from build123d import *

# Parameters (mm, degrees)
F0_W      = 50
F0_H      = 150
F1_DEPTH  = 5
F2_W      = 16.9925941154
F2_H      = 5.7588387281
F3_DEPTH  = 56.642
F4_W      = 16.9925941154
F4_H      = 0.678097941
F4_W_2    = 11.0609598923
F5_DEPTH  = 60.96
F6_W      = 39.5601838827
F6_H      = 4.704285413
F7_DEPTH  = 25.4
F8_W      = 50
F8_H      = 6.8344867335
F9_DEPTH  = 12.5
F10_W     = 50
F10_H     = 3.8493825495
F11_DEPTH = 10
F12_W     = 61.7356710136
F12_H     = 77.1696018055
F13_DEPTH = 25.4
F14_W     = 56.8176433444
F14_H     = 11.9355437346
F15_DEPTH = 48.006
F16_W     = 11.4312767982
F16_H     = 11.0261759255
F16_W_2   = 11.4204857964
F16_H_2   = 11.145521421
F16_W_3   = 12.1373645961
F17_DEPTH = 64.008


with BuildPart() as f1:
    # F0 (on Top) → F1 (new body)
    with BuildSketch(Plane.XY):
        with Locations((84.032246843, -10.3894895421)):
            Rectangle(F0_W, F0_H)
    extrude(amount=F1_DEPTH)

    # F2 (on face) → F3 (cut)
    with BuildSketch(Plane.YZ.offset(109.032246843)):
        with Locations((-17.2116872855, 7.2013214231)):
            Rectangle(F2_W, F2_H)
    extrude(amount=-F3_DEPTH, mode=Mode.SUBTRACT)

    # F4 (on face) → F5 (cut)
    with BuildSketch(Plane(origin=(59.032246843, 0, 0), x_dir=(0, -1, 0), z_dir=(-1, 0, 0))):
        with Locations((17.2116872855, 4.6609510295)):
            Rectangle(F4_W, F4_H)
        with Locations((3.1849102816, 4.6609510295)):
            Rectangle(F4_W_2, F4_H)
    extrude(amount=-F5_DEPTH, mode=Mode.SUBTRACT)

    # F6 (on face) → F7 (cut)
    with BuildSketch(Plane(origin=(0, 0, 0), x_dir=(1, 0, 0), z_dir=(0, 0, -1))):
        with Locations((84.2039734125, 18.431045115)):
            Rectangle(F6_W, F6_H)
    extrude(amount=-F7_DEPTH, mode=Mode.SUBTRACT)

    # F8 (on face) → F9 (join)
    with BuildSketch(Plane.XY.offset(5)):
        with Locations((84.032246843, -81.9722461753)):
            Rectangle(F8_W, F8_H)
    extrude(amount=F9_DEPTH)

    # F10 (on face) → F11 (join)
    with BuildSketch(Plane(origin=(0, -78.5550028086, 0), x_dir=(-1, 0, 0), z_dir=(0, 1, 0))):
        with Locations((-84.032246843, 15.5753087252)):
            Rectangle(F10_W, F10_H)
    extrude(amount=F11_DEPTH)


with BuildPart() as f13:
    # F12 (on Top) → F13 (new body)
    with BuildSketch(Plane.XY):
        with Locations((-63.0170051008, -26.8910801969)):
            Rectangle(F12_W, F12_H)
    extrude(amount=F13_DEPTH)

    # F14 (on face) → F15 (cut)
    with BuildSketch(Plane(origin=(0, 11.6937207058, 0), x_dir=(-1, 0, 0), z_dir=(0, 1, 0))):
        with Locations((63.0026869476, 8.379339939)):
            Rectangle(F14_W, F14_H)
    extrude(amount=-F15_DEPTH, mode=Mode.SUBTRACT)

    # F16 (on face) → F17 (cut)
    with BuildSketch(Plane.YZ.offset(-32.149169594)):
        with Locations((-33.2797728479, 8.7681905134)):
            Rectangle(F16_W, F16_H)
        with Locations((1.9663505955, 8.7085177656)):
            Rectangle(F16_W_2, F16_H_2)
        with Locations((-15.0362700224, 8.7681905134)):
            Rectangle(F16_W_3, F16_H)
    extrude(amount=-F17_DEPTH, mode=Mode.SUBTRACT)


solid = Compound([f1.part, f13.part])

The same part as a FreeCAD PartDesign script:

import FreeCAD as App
import Part
import Sketcher
Q = App.Units.Quantity


def add_polygon(sketch, points):
    """Adds a closed chain of lines whose ends are joined by coincident constraints."""
    first, n = sketch.GeometryCount, len(points)
    for a, b in zip(points, points[1:] + points[:1]):
        sketch.addGeometry(Part.LineSegment(App.Vector(*a, 0), App.Vector(*b, 0)), False)
    for i in range(n):
        sketch.addConstraint(Sketcher.Constraint("Coincident", first + i, 2, first + (i + 1) % n, 1))

doc = App.newDocument("Part")
params = doc.addObject("Spreadsheet::Sheet", "Params")
for row, (alias, value) in enumerate([
    ("sketch1_width", "50 mm"),
    ("sketch1_height", "150 mm"),
    ("pad1_length", "5 mm"),
    ("pocket1_length", "56.642 mm"),
    ("pocket2_length", "60.96 mm"),
    ("pocket3_length", "25.4 mm"),
    ("sketch5_width", "50 mm"),
    ("pad2_length", "12.5 mm"),
    ("sketch6_width", "50 mm"),
    ("pad3_length", "10 mm"),
    ("pad4_length", "25.4 mm"),
    ("pocket4_length", "48.006 mm"),
    ("pocket5_length", "64.008 mm"),
], start=1):
    params.set(f"A{row}", alias)
    params.set(f"B{row}", "=" + value)
    params.setAlias(f"B{row}", alias)

body = doc.addObject("PartDesign::Body", "Body")

# Sketch on XY plane
sketch1 = body.newObject("Sketcher::SketchObject", "Sketch")
sketch1.AttachmentSupport = (doc.getObject("XY_Plane"), [""])
sketch1.MapMode = "FlatFace"
add_polygon(sketch1, [(59.032247, 64.61051), (59.032247, -85.38949), (109.032247, -85.38949), (109.032247, 64.61051)])  # lines 0-3
sketch1.addConstraint([
    Sketcher.Constraint("Vertical", 0),
    Sketcher.Constraint("Horizontal", 1),
    Sketcher.Constraint("Vertical", 2),
    Sketcher.Constraint("Horizontal", 3),
    Sketcher.Constraint("DistanceX", 1, 1, 1, 2, Q("50 mm")),
    Sketcher.Constraint("DistanceY", 0, 2, 0, 1, Q("150 mm")),
    Sketcher.Constraint("DistanceY", 0, 2, -1, 1, Q("85.38949 mm")),
    Sketcher.Constraint("DistanceX", -1, 1, 0, 2, Q("59.032247 mm")),
])
sketch1.setExpression("Constraints[8]", "Params.sketch1_width")
sketch1.setExpression("Constraints[9]", "Params.sketch1_height")
pad1 = body.newObject("PartDesign::Pad", "Pad")
pad1.Profile = sketch1
pad1.setExpression("Length", "Params.pad1_length")

# Sketch on YZ plane
sketch2 = body.newObject("Sketcher::SketchObject", "Sketch001")
sketch2.AttachmentSupport = (doc.getObject("YZ_Plane"), [""])
sketch2.MapMode = "FlatFace"
sketch2.AttachmentOffset = App.Placement(App.Vector(0, 0, 109.032247), App.Rotation())
add_polygon(sketch2, [(-25.707984, 10.080741), (-25.707984, 4.321902), (-8.71539, 4.321902), (-8.71539, 10.080741)])  # lines 0-3
sketch2.addConstraint([
    Sketcher.Constraint("Vertical", 0),
    Sketcher.Constraint("Horizontal", 1),
    Sketcher.Constraint("Vertical", 2),
    Sketcher.Constraint("Horizontal", 3),
    Sketcher.Constraint("DistanceY", 0, 2, 0, 1, Q("5.758839 mm")),
    Sketcher.Constraint("DistanceX", 1, 1, 1, 2, Q("16.992594 mm")),
    Sketcher.Constraint("DistanceX", 1, 2, -1, 1, Q("8.71539 mm")),
    Sketcher.Constraint("DistanceY", -1, 1, 2, 2, Q("10.080741 mm")),
])
pocket1 = body.newObject("PartDesign::Pocket", "Pocket")
pocket1.Profile = sketch2
pocket1.setExpression("Length", "Params.pocket1_length")

# Sketch on YZ plane
sketch3 = body.newObject("Sketcher::SketchObject", "Sketch002")
sketch3.AttachmentSupport = (doc.getObject("YZ_Plane"), [""])
sketch3.MapMode = "FlatFace"
sketch3.AttachmentOffset = App.Placement(App.Vector(0, 0, 59.032247), App.Rotation())
add_polygon(sketch3, [(-25.707984, 4.321902), (-25.707984, 5), (2.34557, 5), (2.34557, 4.321902)])  # lines 0-3
sketch3.addConstraint([
    Sketcher.Constraint("Vertical", 0),
    Sketcher.Constraint("Horizontal", 1),
    Sketcher.Constraint("Vertical", 2),
    Sketcher.Constraint("Horizontal", 3),
    Sketcher.Constraint("DistanceY", -1, 1, 0, 2, Q("5 mm")),
    Sketcher.Constraint("DistanceX", 1, 1, 1, 2, Q("28.053554 mm")),
    Sketcher.Constraint("DistanceY", 0, 1, 0, 2, Q("0.678098 mm")),
    Sketcher.Constraint("DistanceX", -1, 1, 1, 2, Q("2.34557 mm")),
])
pocket2 = body.newObject("PartDesign::Pocket", "Pocket001")
pocket2.Profile = sketch3
pocket2.setExpression("Length", "Params.pocket2_length")
pocket2.Reversed = True

# Sketch on XY plane
sketch4 = body.newObject("Sketcher::SketchObject", "Sketch003")
sketch4.AttachmentSupport = (doc.getObject("XY_Plane"), [""])
sketch4.MapMode = "FlatFace"
add_polygon(sketch4, [(64.423881, -20.783188), (64.423881, -16.078902), (103.984065, -16.078902), (103.984065, -20.783188)])  # lines 0-3
sketch4.addConstraint([
    Sketcher.Constraint("Vertical", 0),
    Sketcher.Constraint("Horizontal", 1),
    Sketcher.Constraint("Vertical", 2),
    Sketcher.Constraint("Horizontal", 3),
    Sketcher.Constraint("DistanceX", 1, 1, 1, 2, Q("39.560184 mm")),
    Sketcher.Constraint("DistanceY", 0, 1, 0, 2, Q("4.704285 mm")),
    Sketcher.Constraint("DistanceX", -1, 1, 0, 2, Q("64.423881 mm")),
    Sketcher.Constraint("DistanceY", 0, 2, -1, 1, Q("16.078902 mm")),
])
pocket3 = body.newObject("PartDesign::Pocket", "Pocket002")
pocket3.Profile = sketch4
pocket3.setExpression("Length", "Params.pocket3_length")
pocket3.Reversed = True

# Sketch on XY plane
sketch5 = body.newObject("Sketcher::SketchObject", "Sketch004")
sketch5.AttachmentSupport = (doc.getObject("XY_Plane"), [""])
sketch5.MapMode = "FlatFace"
sketch5.AttachmentOffset = App.Placement(App.Vector(0, 0, 5), App.Rotation())
add_polygon(sketch5, [(59.032247, -78.555003), (59.032247, -85.38949), (109.032247, -85.38949), (109.032247, -78.555003)])  # lines 0-3
sketch5.addConstraint([
    Sketcher.Constraint("Vertical", 0),
    Sketcher.Constraint("Horizontal", 1),
    Sketcher.Constraint("Vertical", 2),
    Sketcher.Constraint("Horizontal", 3),
    Sketcher.Constraint("DistanceX", 1, 1, 1, 2, Q("50 mm")),
    Sketcher.Constraint("DistanceY", 0, 2, 0, 1, Q("6.834487 mm")),
    Sketcher.Constraint("DistanceY", 0, 2, -1, 1, Q("85.38949 mm")),
    Sketcher.Constraint("DistanceX", -1, 1, 0, 2, Q("59.032247 mm")),
])
sketch5.setExpression("Constraints[8]", "Params.sketch5_width")
pad2 = body.newObject("PartDesign::Pad", "Pad001")
pad2.Profile = sketch5
pad2.setExpression("Length", "Params.pad2_length")

# Sketch on XZ plane
sketch6 = body.newObject("Sketcher::SketchObject", "Sketch005")
sketch6.AttachmentSupport = (doc.getObject("XZ_Plane"), [""])
sketch6.MapMode = "FlatFace"
sketch6.AttachmentOffset = App.Placement(App.Vector(0, 0, 78.555003), App.Rotation())
add_polygon(sketch6, [(109.032247, 17.5), (109.032247, 13.650617), (59.032247, 13.650617), (59.032247, 17.5)])  # lines 0-3
sketch6.addConstraint([
    Sketcher.Constraint("Vertical", 0),
    Sketcher.Constraint("Horizontal", 1),
    Sketcher.Constraint("Vertical", 2),
    Sketcher.Constraint("Horizontal", 3),
    Sketcher.Constraint("DistanceX", 1, 2, 1, 1, Q("50 mm")),
    Sketcher.Constraint("DistanceY", -1, 1, 2, 2, Q("17.5 mm")),
    Sketcher.Constraint("DistanceY", 0, 2, 0, 1, Q("3.849383 mm")),
    Sketcher.Constraint("DistanceX", -1, 1, 0, 2, Q("109.032247 mm")),
])
sketch6.setExpression("Constraints[8]", "Params.sketch6_width")
pad3 = body.newObject("PartDesign::Pad", "Pad002")
pad3.Profile = sketch6
pad3.setExpression("Length", "Params.pad3_length")
pad3.Reversed = True
body2 = doc.addObject("PartDesign::Body", "Body001")

# Sketch on XY plane
sketch7 = body2.newObject("Sketcher::SketchObject", "Sketch006")
sketch7.AttachmentSupport = (doc.getObject("XY_Plane001"), [""])
sketch7.MapMode = "FlatFace"
add_polygon(sketch7, [(-93.884841, 11.693721), (-93.884841, -65.475881), (-32.14917, -65.475881), (-32.14917, 11.693721)])  # lines 0-3
sketch7.addConstraint([
    Sketcher.Constraint("Vertical", 0),
    Sketcher.Constraint("Horizontal", 1),
    Sketcher.Constraint("Vertical", 2),
    Sketcher.Constraint("Horizontal", 3),
    Sketcher.Constraint("DistanceY", 0, 2, 0, 1, Q("77.169602 mm")),
    Sketcher.Constraint("DistanceX", 1, 1, 1, 2, Q("61.735671 mm")),
    Sketcher.Constraint("DistanceX", 0, 2, -1, 1, Q("93.884841 mm")),
    Sketcher.Constraint("DistanceY", 0, 2, -1, 1, Q("65.475881 mm")),
])
pad4 = body2.newObject("PartDesign::Pad", "Pad003")
pad4.Profile = sketch7
pad4.setExpression("Length", "Params.pad4_length")

# Sketch on XZ plane
sketch8 = body2.newObject("Sketcher::SketchObject", "Sketch007")
sketch8.AttachmentSupport = (doc.getObject("XZ_Plane001"), [""])
sketch8.MapMode = "FlatFace"
sketch8.AttachmentOffset = App.Placement(App.Vector(0, 0, -11.693721), App.Rotation())
add_polygon(sketch8, [(-34.593865, 14.347112), (-34.593865, 2.411568), (-91.411509, 2.411568), (-91.411509, 14.347112)])  # lines 0-3
sketch8.addConstraint([
    Sketcher.Constraint("Vertical", 0),
    Sketcher.Constraint("Horizontal", 1),
    Sketcher.Constraint("Vertical", 2),
    Sketcher.Constraint("Horizontal", 3),
    Sketcher.Constraint("DistanceX", 1, 2, 1, 1, Q("56.817643 mm")),
    Sketcher.Constraint("DistanceY", 0, 2, 0, 1, Q("11.935544 mm")),
    Sketcher.Constraint("DistanceY", -1, 1, 0, 2, Q("2.411568 mm")),
    Sketcher.Constraint("DistanceX", 1, 2, -1, 1, Q("91.411509 mm")),
])
pocket4 = body2.newObject("PartDesign::Pocket", "Pocket003")
pocket4.Profile = sketch8
pocket4.setExpression("Length", "Params.pocket4_length")
pocket4.Reversed = True

# Sketch on YZ plane
sketch9 = body2.newObject("Sketcher::SketchObject", "Sketch008")
sketch9.AttachmentSupport = (doc.getObject("YZ_Plane001"), [""])
sketch9.MapMode = "FlatFace"
sketch9.AttachmentOffset = App.Placement(App.Vector(0, 0, -32.14917), App.Rotation())
add_polygon(sketch9, [(-38.995411, 14.281278), (-38.995411, 3.255103), (-27.564134, 3.255103), (-27.564134, 14.281278)])  # lines 0-3
add_polygon(sketch9, [(-3.743892, 14.281278), (-3.743892, 3.135757), (7.676593, 3.135757), (7.676593, 14.281278)])  # lines 4-7
add_polygon(sketch9, [(-21.104952, 14.281278), (-21.104952, 3.255103), (-8.967588, 3.255103), (-8.967588, 14.281278)])  # lines 8-11
sketch9.addConstraint([
    Sketcher.Constraint("Vertical", 0),
    Sketcher.Constraint("Horizontal", 1),
    Sketcher.Constraint("Vertical", 2),
    Sketcher.Constraint("Horizontal", 3),
    Sketcher.Constraint("Vertical", 4),
    Sketcher.Constraint("Horizontal", 5),
    Sketcher.Constraint("Vertical", 6),
    Sketcher.Constraint("Horizontal", 7),
    Sketcher.Constraint("Vertical", 8),
    Sketcher.Constraint("Horizontal", 9),
    Sketcher.Constraint("Vertical", 10),
    Sketcher.Constraint("Horizontal", 11),
    Sketcher.Constraint("Horizontal", 3, 2, 6, 2),
    Sketcher.Constraint("Horizontal", 1, 2, 8, 2),
    Sketcher.Constraint("Horizontal", 7, 2, 10, 2),
    Sketcher.Constraint("DistanceY", 4, 2, 4, 1, Q("11.145521 mm")),
    Sketcher.Constraint("DistanceX", 1, 1, 1, 2, Q("11.431277 mm")),
    Sketcher.Constraint("DistanceX", 5, 1, 5, 2, Q("11.420486 mm")),
    Sketcher.Constraint("DistanceX", 9, 1, 9, 2, Q("12.137365 mm")),
    Sketcher.Constraint("DistanceY", 0, 2, 0, 1, Q("11.026176 mm")),
    Sketcher.Constraint("DistanceX", 0, 2, -1, 1, Q("38.995411 mm")),
    Sketcher.Constraint("DistanceY", -1, 1, 2, 2, Q("14.281278 mm")),
    Sketcher.Constraint("DistanceX", 0, 2, 4, 2, Q("35.251519 mm")),
    Sketcher.Constraint("DistanceX", 8, 2, 4, 2, Q("17.36106 mm")),
])
pocket5 = body2.newObject("PartDesign::Pocket", "Pocket004")
pocket5.Profile = sketch9
pocket5.setExpression("Length", "Params.pocket5_length")

doc.recompute()
